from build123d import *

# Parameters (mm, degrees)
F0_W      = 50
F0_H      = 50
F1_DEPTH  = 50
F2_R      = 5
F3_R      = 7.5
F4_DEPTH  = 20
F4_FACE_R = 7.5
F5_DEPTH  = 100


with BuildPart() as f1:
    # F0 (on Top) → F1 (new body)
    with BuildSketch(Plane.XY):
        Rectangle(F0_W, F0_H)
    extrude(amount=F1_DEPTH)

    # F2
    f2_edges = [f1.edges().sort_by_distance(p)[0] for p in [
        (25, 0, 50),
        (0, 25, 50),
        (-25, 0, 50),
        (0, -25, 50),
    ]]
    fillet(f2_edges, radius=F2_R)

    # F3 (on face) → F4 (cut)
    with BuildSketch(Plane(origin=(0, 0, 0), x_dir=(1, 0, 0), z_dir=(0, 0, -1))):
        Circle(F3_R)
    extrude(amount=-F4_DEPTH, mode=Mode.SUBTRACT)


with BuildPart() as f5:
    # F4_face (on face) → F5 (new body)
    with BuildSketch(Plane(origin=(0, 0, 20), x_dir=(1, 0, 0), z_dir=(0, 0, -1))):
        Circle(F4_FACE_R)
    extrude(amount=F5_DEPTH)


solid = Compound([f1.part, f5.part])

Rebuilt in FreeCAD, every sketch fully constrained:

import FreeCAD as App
import Part
import Sketcher

V = App.Vector


def edges_at(feature, points):
    """Names of the edges that pass closest to the given points."""
    edges = feature.Shape.Edges
    near = lambda p: min(range(len(edges)), key=lambda i: edges[i].distToShape(Part.Vertex(*p))[0])
    return sorted({f"Edge{near(p) + 1}" for p in points})

doc = App.newDocument("Part")
params = doc.addObject("Spreadsheet::Sheet", "Params")
for row, (alias, value) in enumerate([
    ("sketch1_width", "50 mm"),
    ("pad1_length", "50 mm"),
    ("fillet_radius", "5 mm"),
    ("sketch2_diameter", "15 mm"),
    ("pocket1_length", "20 mm"),
    ("sketch3_diameter", "15 mm"),
    ("pad2_length", "100 mm"),
], start=1):
    params.set(f"A{row}", alias)
    params.set(f"B{row}", "=" + value)
    params.setAlias(f"B{row}", alias)

body = doc.addObject("PartDesign::Body", "Body")

# Sketch on XY plane
sketch1 = doc.addObject("Sketcher::SketchObject", "Sketch")
body.addObject(sketch1)
sketch1.AttachmentSupport = (doc.XY_Plane, [""])
sketch1.MapMode = "FlatFace"
sketch1.addGeometry([
    Part.LineSegment(V(-25, 25, 0), V(-25, -25, 0)),
    Part.LineSegment(V(-25, -25, 0), V(25, -25, 0)),
    Part.LineSegment(V(25, -25, 0), V(25, 25, 0)),
    Part.LineSegment(V(25, 25, 0), V(-25, 25, 0)),
], False)
sketch1.addConstraint([
    Sketcher.Constraint("Coincident", 0, 2, 1, 1),
    Sketcher.Constraint("Coincident", 1, 2, 2, 1),
    Sketcher.Constraint("Coincident", 2, 2, 3, 1),
    Sketcher.Constraint("Coincident", 3, 2, 0, 1),
    Sketcher.Constraint("Vertical", 0),
    Sketcher.Constraint("Horizontal", 1),
    Sketcher.Constraint("Vertical", 2),
    Sketcher.Constraint("Horizontal", 3),
    Sketcher.Constraint("Symmetric", 0, 2, 2, 2, -1, 1),
    Sketcher.Constraint("Equal", 3, 0),
    Sketcher.Constraint("DistanceX", 1, 1, 1, 2, 50.0),
])
sketch1.setExpression("Constraints[10]", "Params.sketch1_width")
pad1 = doc.addObject("PartDesign::Pad", "Pad")
body.addObject(pad1)
pad1.Profile = sketch1
pad1.setExpression("Length", "Params.pad1_length")
doc.recompute()

fillet = doc.addObject("PartDesign::Fillet", "Fillet")
body.addObject(fillet)
fillet.Base = (pad1, edges_at(pad1, [
    (25, 0, 50),
    (0, 25, 50),
    (-25, 0, 50),
    (0, -25, 50),
]))
fillet.setExpression("Radius", "Params.fillet_radius")

# Sketch on XY plane
sketch2 = doc.addObject("Sketcher::SketchObject", "Sketch001")
body.addObject(sketch2)
sketch2.AttachmentSupport = (doc.XY_Plane, [""])
sketch2.MapMode = "FlatFace"
sketch2.addGeometry(Part.Circle(V(0, 0, 0), V(0, 0, 1), 8), False)
sketch2.addConstraint([
    Sketcher.Constraint("Coincident", 0, 3, -1, 1),
    Sketcher.Constraint("Diameter", 0, 15.0),
])
sketch2.setExpression("Constraints[1]", "Params.sketch2_diameter")
pocket1 = doc.addObject("PartDesign::Pocket", "Pocket")
body.addObject(pocket1)
pocket1.Profile = sketch2
pocket1.setExpression("Length", "Params.pocket1_length")
pocket1.Reversed = True
body2 = doc.addObject("PartDesign::Body", "Body001")

# Sketch on XY plane
sketch3 = doc.addObject("Sketcher::SketchObject", "Sketch002")
body2.addObject(sketch3)
sketch3.AttachmentSupport = (doc.getObject("XY_Plane001"), [""])
sketch3.MapMode = "FlatFace"
sketch3.AttachmentOffset = App.Placement(V(0, 0, 20), App.Rotation())
sketch3.addGeometry(Part.Circle(V(0, 0, 0), V(0, 0, 1), 8), False)
sketch3.addConstraint([
    Sketcher.Constraint("Coincident", 0, 3, -1, 1),
    Sketcher.Constraint("Diameter", 0, 15.0),
])
sketch3.setExpression("Constraints[1]", "Params.sketch3_diameter")
pad2 = doc.addObject("PartDesign::Pad", "Pad001")
body2.addObject(pad2)
pad2.Profile = sketch3
pad2.setExpression("Length", "Params.pad2_length")
pad2.Reversed = True

doc.recompute()
